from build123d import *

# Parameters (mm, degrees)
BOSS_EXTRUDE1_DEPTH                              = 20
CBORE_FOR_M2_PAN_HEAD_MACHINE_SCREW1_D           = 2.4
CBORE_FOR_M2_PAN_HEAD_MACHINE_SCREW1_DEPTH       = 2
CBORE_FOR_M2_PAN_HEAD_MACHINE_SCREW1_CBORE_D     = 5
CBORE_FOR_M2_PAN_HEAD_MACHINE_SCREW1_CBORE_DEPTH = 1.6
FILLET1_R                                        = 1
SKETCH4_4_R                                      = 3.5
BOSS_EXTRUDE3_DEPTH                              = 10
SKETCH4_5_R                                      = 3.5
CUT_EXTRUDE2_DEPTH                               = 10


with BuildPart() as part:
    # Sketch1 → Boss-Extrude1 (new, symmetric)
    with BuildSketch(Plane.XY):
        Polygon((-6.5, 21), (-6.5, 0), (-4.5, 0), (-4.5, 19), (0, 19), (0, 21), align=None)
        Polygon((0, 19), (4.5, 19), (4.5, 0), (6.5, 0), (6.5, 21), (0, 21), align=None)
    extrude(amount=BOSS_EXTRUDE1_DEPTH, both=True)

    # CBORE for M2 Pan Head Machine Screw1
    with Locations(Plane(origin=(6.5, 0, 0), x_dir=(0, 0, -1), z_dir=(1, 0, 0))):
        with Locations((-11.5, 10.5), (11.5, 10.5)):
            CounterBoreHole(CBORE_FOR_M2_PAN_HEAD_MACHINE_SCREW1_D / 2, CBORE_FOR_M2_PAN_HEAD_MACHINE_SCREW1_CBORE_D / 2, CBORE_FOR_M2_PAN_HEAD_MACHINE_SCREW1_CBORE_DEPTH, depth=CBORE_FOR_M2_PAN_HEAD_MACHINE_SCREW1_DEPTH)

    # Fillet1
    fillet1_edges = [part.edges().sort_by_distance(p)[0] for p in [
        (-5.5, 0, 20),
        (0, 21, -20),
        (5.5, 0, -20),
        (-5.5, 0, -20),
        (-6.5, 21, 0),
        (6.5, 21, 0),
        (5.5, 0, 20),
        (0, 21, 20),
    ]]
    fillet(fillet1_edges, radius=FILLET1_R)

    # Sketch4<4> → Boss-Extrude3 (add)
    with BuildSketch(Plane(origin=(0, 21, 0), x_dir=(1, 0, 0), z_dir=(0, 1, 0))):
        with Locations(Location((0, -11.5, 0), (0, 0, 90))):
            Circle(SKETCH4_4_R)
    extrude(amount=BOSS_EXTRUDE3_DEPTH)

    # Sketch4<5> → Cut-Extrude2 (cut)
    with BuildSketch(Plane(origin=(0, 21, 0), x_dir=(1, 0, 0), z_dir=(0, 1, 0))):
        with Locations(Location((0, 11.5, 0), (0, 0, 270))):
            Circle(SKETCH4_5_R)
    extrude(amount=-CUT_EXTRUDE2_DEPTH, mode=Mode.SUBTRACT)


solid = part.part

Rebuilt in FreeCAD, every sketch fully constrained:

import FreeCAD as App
import Part
import Sketcher
from FreeCAD import Vector


def edges_at(feature, points):
    """Names of the edges that pass closest to the given points."""
    edges = feature.Shape.Edges
    near = lambda p: min(range(len(edges)), key=lambda i: edges[i].distToShape(Part.Vertex(*p))[0])
    return sorted({f"Edge{near(p) + 1}" for p in points})

doc = App.newDocument("Part")
body = doc.addObject("PartDesign::Body", "Body")

sketch1 = body.newObject("Sketcher::SketchObject", "Sketch")
sketch1.AttachmentSupport = (doc.getObject("XY_Plane"), [""])
sketch1.MapMode = "FlatFace"
sketch1.addGeometry([
    Part.LineSegment(Vector(-6.5, 21, 0), Vector(-6.5, 0, 0)),
    Part.LineSegment(Vector(-6.5, 0, 0), Vector(-4.5, 0, 0)),
    Part.LineSegment(Vector(-4.5, 0, 0), Vector(-4.5, 19, 0)),
    Part.LineSegment(Vector(-4.5, 19, 0), Vector(4.5, 19, 0)),
    Part.LineSegment(Vector(4.5, 19, 0), Vector(4.5, 0, 0)),
    Part.LineSegment(Vector(4.5, 0, 0), Vector(6.5, 0, 0)),
    Part.LineSegment(Vector(6.5, 0, 0), Vector(6.5, 21, 0)),
    Part.LineSegment(Vector(6.5, 21, 0), Vector(-6.5, 21, 0)),
], False)
sketch1.addConstraint([
    Sketcher.Constraint("Coincident", 0, 2, 1, 1),
    Sketcher.Constraint("Coincident", 1, 2, 2, 1),
    Sketcher.Constraint("Coincident", 2, 2, 3, 1),
    Sketcher.Constraint("Coincident", 3, 2, 4, 1),
    Sketcher.Constraint("Coincident", 4, 2, 5, 1),
    Sketcher.Constraint("Coincident", 5, 2, 6, 1),
    Sketcher.Constraint("Coincident", 6, 2, 7, 1),
    Sketcher.Constraint("Coincident", 7, 2, 0, 1),
    Sketcher.Constraint("Vertical", 0),
    Sketcher.Constraint("Horizontal", 1),
    Sketcher.Constraint("Vertical", 2),
    Sketcher.Constraint("Horizontal", 3),
    Sketcher.Constraint("Vertical", 4),
    Sketcher.Constraint("Horizontal", 5),
    Sketcher.Constraint("Vertical", 6),
    Sketcher.Constraint("Horizontal", 7),
    Sketcher.Constraint("Symmetric", 1, 2, 4, 2, -1, 1),
    Sketcher.Constraint("Symmetric", 0, 2, 5, 2, -2),
    Sketcher.Constraint("DistanceX", 1, 1, 1, 2, 2.0),
    Sketcher.Constraint("DistanceX", 3, 1, 3, 2, 9.0),
    Sketcher.Constraint("DistanceY", 0, 2, 0, 1, 21.0),
    Sketcher.Constraint("DistanceY", 2, 1, 2, 2, 19.0),
])
pad1 = body.newObject("PartDesign::Pad", "Pad")
pad1.Profile = sketch1
pad1.Length = 40
pad1.Midplane = True

sketch2 = body.newObject("Sketcher::SketchObject", "Sketch001")
sketch2.AttachmentSupport = (doc.getObject("YZ_Plane"), [""])
sketch2.MapMode = "FlatFace"
sketch2.AttachmentOffset = App.Placement(Vector(0, 0, 6.5), App.Rotation())
sketch2.addGeometry([
    Part.Circle(Vector(10.5, 11.5, 0), Vector(0, 0, 1), 1.2),
    Part.Circle(Vector(10.5, -11.5, 0), Vector(0, 0, 1), 1.2),
], False)
sketch2.addConstraint([
    Sketcher.Constraint("Equal", 0, 1),
    Sketcher.Constraint("Symmetric", 0, 3, 1, 3, -1),
    Sketcher.Constraint("Diameter", 0, 2.4),
    Sketcher.Constraint("DistanceY", 1, 3, 0, 3, 23.0),
    Sketcher.Constraint("DistanceX", -1, 1, 0, 3, 10.5),
])
doc.recompute()
hole = body.newObject("PartDesign::Hole", "Hole")
hole.Profile = sketch2
hole.ThreadType = "None"
hole.Diameter = 2.4
hole.DepthType = "Dimension"
hole.Depth = 2
hole.DrillPoint = "Flat"
hole.HoleCutType = "Counterbore"
hole.HoleCutDiameter = 5
hole.HoleCutDepth = 1.6
doc.recompute()

fillet = body.newObject("PartDesign::Fillet", "Fillet")
fillet.Base = (hole, edges_at(hole, [
    (-5.5, 0, 20),
    (0, 21, -20),
    (5.5, 0, -20),
    (-5.5, 0, -20),
    (-6.5, 21, 0),
    (6.5, 21, 0),
    (5.5, 0, 20),
    (0, 21, 20),
]))
fillet.Radius = 1

sketch3 = body.newObject("Sketcher::SketchObject", "Sketch002")
sketch3.AttachmentSupport = (doc.getObject("XZ_Plane"), [""])
sketch3.MapMode = "FlatFace"
sketch3.AttachmentOffset = App.Placement(Vector(0, 0, -21), App.Rotation())
sketch3.addGeometry(Part.Circle(Vector(0, 11.5, 0), Vector(0, 0, 1), 3.5), False)
sketch3.addConstraint([
    Sketcher.Constraint("PointOnObject", 0, 3, -2),
    Sketcher.Constraint("Diameter", 0, 7.0),
    Sketcher.Constraint("DistanceY", -1, 1, 0, 3, 11.5),
])
pad2 = body.newObject("PartDesign::Pad", "Pad001")
pad2.Profile = sketch3
pad2.Length = 10
pad2.Reversed = True

sketch4 = body.newObject("Sketcher::SketchObject", "Sketch003")
sketch4.AttachmentSupport = (doc.getObject("XZ_Plane"), [""])
sketch4.MapMode = "FlatFace"
sketch4.AttachmentOffset = App.Placement(Vector(0, 0, -21), App.Rotation())
sketch4.addGeometry(Part.Circle(Vector(0, -11.5, 0), Vector(0, 0, 1), 3.5), False)
sketch4.addConstraint([
    Sketcher.Constraint("PointOnObject", 0, 3, -2),
    Sketcher.Constraint("Diameter", 0, 7.0),
    Sketcher.Constraint("DistanceY", 0, 3, -1, 1, 11.5),
])
pocket1 = body.newObject("PartDesign::Pocket", "Pocket")
pocket1.Profile = sketch4
pocket1.Length = 10
pocket1.Reversed = True

doc.recompute()
